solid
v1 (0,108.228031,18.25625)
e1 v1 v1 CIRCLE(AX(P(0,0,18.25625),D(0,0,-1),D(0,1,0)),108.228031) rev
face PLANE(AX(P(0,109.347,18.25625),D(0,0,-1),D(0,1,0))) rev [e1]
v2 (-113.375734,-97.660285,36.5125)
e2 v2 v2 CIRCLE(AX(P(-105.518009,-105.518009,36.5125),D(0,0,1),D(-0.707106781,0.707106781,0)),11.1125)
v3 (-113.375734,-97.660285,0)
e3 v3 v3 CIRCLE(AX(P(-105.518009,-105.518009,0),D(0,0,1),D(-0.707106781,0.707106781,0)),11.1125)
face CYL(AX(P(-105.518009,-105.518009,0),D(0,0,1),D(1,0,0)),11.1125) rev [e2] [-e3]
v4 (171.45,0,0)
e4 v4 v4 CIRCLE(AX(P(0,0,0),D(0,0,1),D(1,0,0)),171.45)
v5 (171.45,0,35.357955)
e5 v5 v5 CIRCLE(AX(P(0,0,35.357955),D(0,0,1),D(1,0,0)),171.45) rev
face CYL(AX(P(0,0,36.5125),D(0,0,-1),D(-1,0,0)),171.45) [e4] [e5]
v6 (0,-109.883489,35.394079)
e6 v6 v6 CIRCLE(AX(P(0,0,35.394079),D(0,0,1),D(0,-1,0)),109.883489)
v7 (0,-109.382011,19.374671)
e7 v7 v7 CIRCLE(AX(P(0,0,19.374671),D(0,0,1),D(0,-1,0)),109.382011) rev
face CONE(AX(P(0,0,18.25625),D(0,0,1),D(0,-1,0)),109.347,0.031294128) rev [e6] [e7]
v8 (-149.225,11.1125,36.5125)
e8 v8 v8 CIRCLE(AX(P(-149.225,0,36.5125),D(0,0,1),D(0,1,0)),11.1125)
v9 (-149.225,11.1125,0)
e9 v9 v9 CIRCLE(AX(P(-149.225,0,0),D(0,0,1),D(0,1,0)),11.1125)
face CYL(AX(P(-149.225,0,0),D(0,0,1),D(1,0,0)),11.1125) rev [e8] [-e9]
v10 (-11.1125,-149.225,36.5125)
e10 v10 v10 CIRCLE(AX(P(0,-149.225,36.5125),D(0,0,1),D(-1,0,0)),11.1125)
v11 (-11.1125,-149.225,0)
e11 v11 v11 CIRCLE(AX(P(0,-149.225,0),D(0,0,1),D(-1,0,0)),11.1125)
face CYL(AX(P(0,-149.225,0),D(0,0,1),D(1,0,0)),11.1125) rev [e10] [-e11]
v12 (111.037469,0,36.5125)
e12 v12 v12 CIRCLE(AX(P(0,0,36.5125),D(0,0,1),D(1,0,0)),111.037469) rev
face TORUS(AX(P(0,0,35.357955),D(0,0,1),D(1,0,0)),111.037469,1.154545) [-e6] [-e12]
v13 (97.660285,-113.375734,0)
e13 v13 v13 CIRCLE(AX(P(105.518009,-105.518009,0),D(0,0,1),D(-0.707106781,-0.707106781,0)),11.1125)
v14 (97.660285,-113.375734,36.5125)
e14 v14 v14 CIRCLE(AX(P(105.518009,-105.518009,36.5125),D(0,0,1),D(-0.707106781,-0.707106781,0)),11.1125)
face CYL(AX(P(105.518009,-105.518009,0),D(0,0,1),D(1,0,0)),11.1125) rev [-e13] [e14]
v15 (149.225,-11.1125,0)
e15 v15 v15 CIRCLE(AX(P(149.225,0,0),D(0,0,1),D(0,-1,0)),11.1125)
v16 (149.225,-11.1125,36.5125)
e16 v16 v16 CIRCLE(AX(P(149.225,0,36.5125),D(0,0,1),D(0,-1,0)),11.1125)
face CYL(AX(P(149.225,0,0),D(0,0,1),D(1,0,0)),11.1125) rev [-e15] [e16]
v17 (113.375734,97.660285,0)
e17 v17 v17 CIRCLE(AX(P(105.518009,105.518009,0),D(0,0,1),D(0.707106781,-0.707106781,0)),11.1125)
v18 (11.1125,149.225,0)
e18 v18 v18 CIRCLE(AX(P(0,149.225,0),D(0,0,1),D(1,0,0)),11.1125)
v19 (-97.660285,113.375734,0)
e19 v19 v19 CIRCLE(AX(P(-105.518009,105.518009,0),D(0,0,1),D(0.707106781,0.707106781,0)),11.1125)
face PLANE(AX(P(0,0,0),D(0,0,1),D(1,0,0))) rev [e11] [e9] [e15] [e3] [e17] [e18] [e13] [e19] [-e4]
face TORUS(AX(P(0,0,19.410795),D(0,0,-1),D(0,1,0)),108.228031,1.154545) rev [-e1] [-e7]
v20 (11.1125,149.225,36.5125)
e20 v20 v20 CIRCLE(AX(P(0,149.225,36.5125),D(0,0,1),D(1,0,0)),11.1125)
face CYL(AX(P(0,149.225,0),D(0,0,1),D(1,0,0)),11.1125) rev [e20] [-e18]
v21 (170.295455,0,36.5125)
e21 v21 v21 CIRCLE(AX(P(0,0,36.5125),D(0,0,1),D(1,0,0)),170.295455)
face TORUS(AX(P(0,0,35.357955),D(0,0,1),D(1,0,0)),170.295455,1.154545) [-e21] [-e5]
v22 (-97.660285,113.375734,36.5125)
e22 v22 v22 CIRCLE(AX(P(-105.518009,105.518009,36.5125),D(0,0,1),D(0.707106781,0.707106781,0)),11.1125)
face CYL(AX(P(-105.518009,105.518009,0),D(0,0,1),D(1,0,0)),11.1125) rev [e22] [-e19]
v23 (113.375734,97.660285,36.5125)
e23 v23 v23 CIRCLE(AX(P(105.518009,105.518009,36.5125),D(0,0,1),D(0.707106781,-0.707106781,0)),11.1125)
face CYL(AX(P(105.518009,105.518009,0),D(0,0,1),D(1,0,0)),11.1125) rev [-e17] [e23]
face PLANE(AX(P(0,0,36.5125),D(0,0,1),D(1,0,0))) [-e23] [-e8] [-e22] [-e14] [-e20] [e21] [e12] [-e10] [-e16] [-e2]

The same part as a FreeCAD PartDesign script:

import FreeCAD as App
import Part
import Sketcher
from FreeCAD import Vector
Q = App.Units.Quantity


def edges_at(feature, points):
    """Names of the edges that pass closest to the given points."""
    edges = feature.Shape.Edges
    near = lambda p: min(range(len(edges)), key=lambda i: edges[i].distToShape(Part.Vertex(*p))[0])
    return sorted({f"Edge{near(p) + 1}" for p in points})


def add_polygon(sketch, points):
    """Adds a closed chain of lines whose ends are joined by coincident constraints."""
    first, n = sketch.GeometryCount, len(points)
    for a, b in zip(points, points[1:] + points[:1]):
        sketch.addGeometry(Part.LineSegment(App.Vector(*a, 0), App.Vector(*b, 0)), False)
    for i in range(n):
        sketch.addConstraint(Sketcher.Constraint("Coincident", first + i, 2, first + (i + 1) % n, 1))

doc = App.newDocument("Part")
params = doc.addObject("Spreadsheet::Sheet", "Params")
for row, (alias, value) in enumerate([
    ("sketch1_diameter", "13.5 in"),
    ("pad1_length", "1.4375 in"),
    ("sketch2_diameter", "0.875 in"),
    ("sketch3_width", "4.305 in"),
    ("sketch3_height", "0.71875 in"),
    ("groove_angle", "360 deg"),
    ("fillet_radius", "1.154545 mm"),
], start=1):
    params.set(f"A{row}", alias)
    params.set(f"B{row}", "=" + value)
    params.setAlias(f"B{row}", alias)

body = doc.addObject("PartDesign::Body", "Body")

# Sketch on XY plane
sketch1 = body.newObject("Sketcher::SketchObject", "Sketch")
sketch1.AttachmentSupport = (doc.getObject("XY_Plane"), [""])
sketch1.MapMode = "FlatFace"
sketch1.addGeometry(Part.Circle(Vector(0, 0, 0), Vector(0, 0, 1), 171.45), False)
sketch1.addConstraint([
    Sketcher.Constraint("Coincident", 0, 3, -1, 1),
    Sketcher.Constraint("Diameter", 0, Q("13.5 in")),
])
sketch1.setExpression("Constraints[1]", "Params.sketch1_diameter")
pad1 = body.newObject("PartDesign::Pad", "Pad")
pad1.Profile = sketch1
pad1.setExpression("Length", "Params.pad1_length")

# Sketch on XY plane
sketch2 = body.newObject("Sketcher::SketchObject", "Sketch001")
sketch2.AttachmentSupport = (doc.getObject("XY_Plane"), [""])
sketch2.MapMode = "FlatFace"
sketch2.AttachmentOffset = App.Placement(Vector(0, 0, 1.4375 * 25.4), App.Rotation())
sketch2.addGeometry(Part.Circle(Vector(0, 149.225, 0), Vector(0, 0, 1), 11.1125), False)
sketch2.addConstraint([
    Sketcher.Constraint("PointOnObject", 0, 3, -2),
    Sketcher.Constraint("Diameter", 0, Q("0.875 in")),
    Sketcher.Constraint("DistanceY", -1, 1, 0, 3, Q("5.875 in")),
])
sketch2.setExpression("Constraints[1]", "Params.sketch2_diameter")
pocket1 = body.newObject("PartDesign::Pocket", "Pocket")
pocket1.Profile = sketch2
pocket1.Type = "ThroughAll"
doc.recompute()

polarpattern = body.newObject("PartDesign::PolarPattern", "PolarPattern")
polarpattern.Originals = [pocket1]
polarpattern.Axis = (doc.getObject("Z_Axis"), [""])
polarpattern.Angle = 360
polarpattern.Occurrences = 8
body.Tip = polarpattern

# Sketch on YZ plane
sketch3 = body.newObject("Sketcher::SketchObject", "Sketch002")
sketch3.AttachmentSupport = (doc.getObject("YZ_Plane"), [""])
sketch3.MapMode = "FlatFace"
add_polygon(sketch3, [(109.347, 18.25625), (109.9185, 36.5125), (0, 36.5125), (0, 18.25625)])  # lines 0-3
sketch3.addConstraint([
    Sketcher.Constraint("Horizontal", 1),
    Sketcher.Constraint("Vertical", 2),
    Sketcher.Constraint("Horizontal", 3),
    Sketcher.Constraint("PointOnObject", 1, 2, -2),
    Sketcher.Constraint("DistanceX", 3, 1, 3, 2, Q("4.305 in")),
    Sketcher.Constraint("DistanceY", 2, 2, 2, 1, Q("0.71875 in")),
    Sketcher.Constraint("DistanceX", 1, 2, 1, 1, Q("4.3275 in")),
    Sketcher.Constraint("DistanceY", -1, 1, 0, 2, Q("1.4375 in")),
])
sketch3.setExpression("Constraints[8]", "Params.sketch3_width")
sketch3.setExpression("Constraints[9]", "Params.sketch3_height")
groove = body.newObject("PartDesign::Groove", "Groove")
groove.Profile = sketch3
groove.ReferenceAxis = (sketch3, ["V_Axis"])
groove.setExpression("Angle", "Params.groove_angle")
doc.recompute()

fillet = body.newObject("PartDesign::Fillet", "Fillet")
fillet.Base = (groove, edges_at(groove, [(0, -109.347, 18.256), (0, -109.918, 36.513), (-171.45, 0, 36.513)]))
fillet.setExpression("Radius", "Params.fillet_radius")

doc.recompute()
